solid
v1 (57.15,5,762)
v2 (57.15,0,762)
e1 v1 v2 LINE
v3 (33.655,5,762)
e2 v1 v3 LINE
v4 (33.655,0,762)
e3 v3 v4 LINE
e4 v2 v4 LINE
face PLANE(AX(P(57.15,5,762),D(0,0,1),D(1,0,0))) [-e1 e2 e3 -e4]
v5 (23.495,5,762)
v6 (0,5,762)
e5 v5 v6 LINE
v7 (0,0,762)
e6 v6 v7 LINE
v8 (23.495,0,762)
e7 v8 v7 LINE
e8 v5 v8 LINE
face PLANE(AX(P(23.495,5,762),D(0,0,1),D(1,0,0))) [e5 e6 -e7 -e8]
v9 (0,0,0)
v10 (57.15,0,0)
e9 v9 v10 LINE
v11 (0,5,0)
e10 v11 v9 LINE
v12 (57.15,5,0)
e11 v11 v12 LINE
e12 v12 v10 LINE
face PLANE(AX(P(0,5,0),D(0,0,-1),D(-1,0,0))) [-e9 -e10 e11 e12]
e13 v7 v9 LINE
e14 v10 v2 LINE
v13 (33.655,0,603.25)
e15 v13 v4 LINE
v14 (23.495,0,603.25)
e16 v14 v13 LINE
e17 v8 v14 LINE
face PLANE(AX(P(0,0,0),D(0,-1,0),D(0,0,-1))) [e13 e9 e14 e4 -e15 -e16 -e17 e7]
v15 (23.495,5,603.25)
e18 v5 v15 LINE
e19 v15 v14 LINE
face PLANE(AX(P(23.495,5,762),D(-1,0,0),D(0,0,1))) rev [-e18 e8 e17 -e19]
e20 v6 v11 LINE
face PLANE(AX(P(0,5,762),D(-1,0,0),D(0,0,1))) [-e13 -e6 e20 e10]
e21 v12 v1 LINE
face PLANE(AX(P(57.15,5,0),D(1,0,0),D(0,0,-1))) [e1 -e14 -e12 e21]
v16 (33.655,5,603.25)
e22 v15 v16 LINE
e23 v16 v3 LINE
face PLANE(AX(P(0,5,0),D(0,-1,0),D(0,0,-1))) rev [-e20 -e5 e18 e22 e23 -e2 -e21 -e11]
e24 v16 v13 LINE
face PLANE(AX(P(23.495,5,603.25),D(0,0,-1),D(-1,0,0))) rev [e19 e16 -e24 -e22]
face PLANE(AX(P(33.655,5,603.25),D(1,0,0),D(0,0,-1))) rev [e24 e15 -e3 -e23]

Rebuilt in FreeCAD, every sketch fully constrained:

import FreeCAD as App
import Part
import Sketcher

V = App.Vector
Q = App.Units.Quantity


def add_polygon(sketch, points):
    """Adds a closed chain of lines whose ends are joined by coincident constraints."""
    first, n = sketch.GeometryCount, len(points)
    for a, b in zip(points, points[1:] + points[:1]):
        sketch.addGeometry(Part.LineSegment(App.Vector(*a, 0), App.Vector(*b, 0)), False)
    for i in range(n):
        sketch.addConstraint(Sketcher.Constraint("Coincident", first + i, 2, first + (i + 1) % n, 1))

doc = App.newDocument("Part")
body = doc.addObject("PartDesign::Body", "Body")

sketch1 = doc.addObject("Sketcher::SketchObject", "Sketch")
body.addObject(sketch1)
sketch1.AttachmentSupport = (doc.XZ_Plane, [""])
sketch1.MapMode = "FlatFace"
add_polygon(sketch1, [(57.15, 0), (0, 0), (0, 762), (23.495, 762), (23.495, 603.25), (33.655, 603.25), (33.655, 762), (57.15, 762)])
sketch1.addConstraint([
    Sketcher.Constraint("Horizontal", 0),
    Sketcher.Constraint("Vertical", 1),
    Sketcher.Constraint("Horizontal", 2),
    Sketcher.Constraint("Vertical", 3),
    Sketcher.Constraint("Horizontal", 4),
    Sketcher.Constraint("Vertical", 5),
    Sketcher.Constraint("Horizontal", 6),
    Sketcher.Constraint("Vertical", 7),
    Sketcher.Constraint("Coincident", 0, 2, -1, 1),
    Sketcher.Constraint("Horizontal", 2, 2, 5, 2),
    Sketcher.Constraint("Equal", 2, 6),
    Sketcher.Constraint("DistanceY", 1, 1, 1, 2, Q("30 in")),
    Sketcher.Constraint("DistanceX", 4, 1, 4, 2, Q("0.4 in")),
    Sketcher.Constraint("DistanceX", 0, 2, 0, 1, Q("2.25 in")),
    Sketcher.Constraint("DistanceY", 3, 2, 3, 1, Q("6.25 in")),
])
pad1 = doc.addObject("PartDesign::Pad", "Pad")
body.addObject(pad1)
pad1.Profile = sketch1
pad1.Length = 5
pad1.Reversed = True

doc.recompute()
